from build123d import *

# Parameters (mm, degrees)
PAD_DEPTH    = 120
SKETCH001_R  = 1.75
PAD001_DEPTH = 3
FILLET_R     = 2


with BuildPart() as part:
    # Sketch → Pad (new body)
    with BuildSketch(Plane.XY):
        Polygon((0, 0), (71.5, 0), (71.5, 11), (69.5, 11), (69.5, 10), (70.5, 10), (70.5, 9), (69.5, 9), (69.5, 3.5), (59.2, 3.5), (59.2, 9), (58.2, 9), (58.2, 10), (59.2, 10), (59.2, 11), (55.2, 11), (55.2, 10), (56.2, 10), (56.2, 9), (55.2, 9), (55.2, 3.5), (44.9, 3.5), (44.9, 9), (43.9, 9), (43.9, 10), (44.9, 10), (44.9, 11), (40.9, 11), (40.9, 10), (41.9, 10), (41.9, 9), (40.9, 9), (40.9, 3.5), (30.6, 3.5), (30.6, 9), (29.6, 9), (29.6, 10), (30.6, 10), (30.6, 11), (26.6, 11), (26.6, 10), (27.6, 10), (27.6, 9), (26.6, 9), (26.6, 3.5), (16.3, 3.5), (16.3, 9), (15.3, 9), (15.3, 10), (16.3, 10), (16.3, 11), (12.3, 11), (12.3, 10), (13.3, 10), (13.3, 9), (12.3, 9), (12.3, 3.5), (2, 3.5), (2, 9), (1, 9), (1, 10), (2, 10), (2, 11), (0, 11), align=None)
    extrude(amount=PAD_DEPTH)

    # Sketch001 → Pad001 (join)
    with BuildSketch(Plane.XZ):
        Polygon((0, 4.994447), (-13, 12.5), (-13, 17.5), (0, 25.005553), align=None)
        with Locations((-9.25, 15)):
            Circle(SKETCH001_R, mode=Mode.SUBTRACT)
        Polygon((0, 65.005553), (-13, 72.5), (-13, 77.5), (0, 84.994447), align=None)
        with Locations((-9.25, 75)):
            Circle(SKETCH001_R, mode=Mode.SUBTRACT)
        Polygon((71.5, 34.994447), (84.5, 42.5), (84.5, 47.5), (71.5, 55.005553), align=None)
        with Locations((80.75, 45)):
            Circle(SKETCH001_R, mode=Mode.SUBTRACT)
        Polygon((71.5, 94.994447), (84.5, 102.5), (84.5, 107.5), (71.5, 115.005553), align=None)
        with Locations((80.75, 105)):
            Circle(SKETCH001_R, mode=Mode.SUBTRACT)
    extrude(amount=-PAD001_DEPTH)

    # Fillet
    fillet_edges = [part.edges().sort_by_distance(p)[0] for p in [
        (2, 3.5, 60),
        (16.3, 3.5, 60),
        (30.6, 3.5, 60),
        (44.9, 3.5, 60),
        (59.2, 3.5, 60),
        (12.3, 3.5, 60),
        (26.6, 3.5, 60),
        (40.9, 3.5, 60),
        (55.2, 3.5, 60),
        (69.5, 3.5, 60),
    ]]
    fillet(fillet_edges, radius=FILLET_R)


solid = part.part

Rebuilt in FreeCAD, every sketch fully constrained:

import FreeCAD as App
import Part
import Sketcher

V = App.Vector
Q = App.Units.Quantity


def edges_at(feature, points):
    """Names of the edges that pass closest to the given points."""
    edges = feature.Shape.Edges
    near = lambda p: min(range(len(edges)), key=lambda i: edges[i].distToShape(Part.Vertex(*p))[0])
    return sorted({f"Edge{near(p) + 1}" for p in points})


def add_polygon(sketch, points):
    """Adds a closed chain of lines whose ends are joined by coincident constraints."""
    first, n = sketch.GeometryCount, len(points)
    for a, b in zip(points, points[1:] + points[:1]):
        sketch.addGeometry(Part.LineSegment(App.Vector(*a, 0), App.Vector(*b, 0)), False)
    for i in range(n):
        sketch.addConstraint(Sketcher.Constraint("Coincident", first + i, 2, first + (i + 1) % n, 1))

doc = App.newDocument("Part")
body = doc.addObject("PartDesign::Body", "Body")

# Sketch on XY plane
sketch1 = doc.addObject("Sketcher::SketchObject", "Sketch")
body.addObject(sketch1)
sketch1.AttachmentSupport = (doc.XY_Plane, [""])
sketch1.MapMode = "FlatFace"
add_polygon(sketch1, [(0, 0), (71.5, 0), (71.5, 11), (69.5, 11), (69.5, 10), (70.5, 10), (70.5, 9), (69.5, 9), (69.5, 3.5), (59.2, 3.5), (59.2, 9), (58.2, 9), (58.2, 10), (59.2, 10), (59.2, 11), (55.2, 11), (55.2, 10), (56.2, 10), (56.2, 9), (55.2, 9), (55.2, 3.5), (44.9, 3.5), (44.9, 9), (43.9, 9), (43.9, 10), (44.9, 10), (44.9, 11), (40.9, 11), (40.9, 10), (41.9, 10), (41.9, 9), (40.9, 9), (40.9, 3.5), (30.6, 3.5), (30.6, 9), (29.6, 9), (29.6, 10), (30.6, 10), (30.6, 11), (26.6, 11), (26.6, 10), (27.6, 10), (27.6, 9), (26.6, 9), (26.6, 3.5), (16.3, 3.5), (16.3, 9), (15.3, 9), (15.3, 10), (16.3, 10), (16.3, 11), (12.3, 11), (12.3, 10), (13.3, 10), (13.3, 9), (12.3, 9), (12.3, 3.5), (2, 3.5), (2, 9), (1, 9), (1, 10), (2, 10), (2, 11), (0, 11)])  # lines 0-63
sketch1.addConstraint([
    Sketcher.Constraint("Horizontal", 0),
    Sketcher.Constraint("Vertical", 1),
    Sketcher.Constraint("Horizontal", 2),
    Sketcher.Constraint("Vertical", 3),
    Sketcher.Constraint("Horizontal", 4),
    Sketcher.Constraint("Vertical", 5),
    Sketcher.Constraint("Horizontal", 6),
    Sketcher.Constraint("Vertical", 7),
    Sketcher.Constraint("Horizontal", 8),
    Sketcher.Constraint("Vertical", 9),
    Sketcher.Constraint("Horizontal", 10),
    Sketcher.Constraint("Vertical", 11),
    Sketcher.Constraint("Horizontal", 12),
    Sketcher.Constraint("Vertical", 13),
    Sketcher.Constraint("Horizontal", 14),
    Sketcher.Constraint("Vertical", 15),
    Sketcher.Constraint("Horizontal", 16),
    Sketcher.Constraint("Vertical", 17),
    Sketcher.Constraint("Horizontal", 18),
    Sketcher.Constraint("Vertical", 19),
    Sketcher.Constraint("Horizontal", 20),
    Sketcher.Constraint("Vertical", 21),
    Sketcher.Constraint("Horizontal", 22),
    Sketcher.Constraint("Vertical", 23),
    Sketcher.Constraint("Horizontal", 24),
    Sketcher.Constraint("Vertical", 25),
    Sketcher.Constraint("Horizontal", 26),
    Sketcher.Constraint("Vertical", 27),
    Sketcher.Constraint("Horizontal", 28),
    Sketcher.Constraint("Vertical", 29),
    Sketcher.Constraint("Horizontal", 30),
    Sketcher.Constraint("Vertical", 31),
    Sketcher.Constraint("Horizontal", 32),
    Sketcher.Constraint("Vertical", 33),
    Sketcher.Constraint("Horizontal", 34),
    Sketcher.Constraint("Vertical", 35),
    Sketcher.Constraint("Horizontal", 36),
    Sketcher.Constraint("Vertical", 37),
    Sketcher.Constraint("Horizontal", 38),
    Sketcher.Constraint("Vertical", 39),
    Sketcher.Constraint("Horizontal", 40),
    Sketcher.Constraint("Vertical", 41),
    Sketcher.Constraint("Horizontal", 42),
    Sketcher.Constraint("Vertical", 43),
    Sketcher.Constraint("Horizontal", 44),
    Sketcher.Constraint("Vertical", 45),
    Sketcher.Constraint("Horizontal", 46),
    Sketcher.Constraint("Vertical", 47),
    Sketcher.Constraint("Horizontal", 48),
    Sketcher.Constraint("Vertical", 49),
    Sketcher.Constraint("Horizontal", 50),
    Sketcher.Constraint("Vertical", 51),
    Sketcher.Constraint("Horizontal", 52),
    Sketcher.Constraint("Vertical", 53),
    Sketcher.Constraint("Horizontal", 54),
    Sketcher.Constraint("Vertical", 55),
    Sketcher.Constraint("Horizontal", 56),
    Sketcher.Constraint("Vertical", 57),
    Sketcher.Constraint("Horizontal", 58),
    Sketcher.Constraint("Vertical", 59),
    Sketcher.Constraint("Horizontal", 60),
    Sketcher.Constraint("Vertical", 61),
    Sketcher.Constraint("Horizontal", 62),
    Sketcher.Constraint("Vertical", 63),
    Sketcher.Constraint("Coincident", 63, 2, -1, 1),
    Sketcher.Constraint("Horizontal", 6, 2, 9, 2),
    Sketcher.Constraint("Horizontal", 4, 2, 11, 2),
    Sketcher.Constraint("Horizontal", 2, 2, 13, 2),
    Sketcher.Constraint("Horizontal", 12, 2, 15, 2),
    Sketcher.Constraint("Horizontal", 10, 2, 17, 2),
    Sketcher.Constraint("Horizontal", 8, 2, 19, 2),
    Sketcher.Constraint("Horizontal", 18, 2, 21, 2),
    Sketcher.Constraint("Horizontal", 16, 2, 23, 2),
    Sketcher.Constraint("Horizontal", 14, 2, 25, 2),
    Sketcher.Constraint("Horizontal", 24, 2, 27, 2),
    Sketcher.Constraint("Horizontal", 22, 2, 29, 2),
    Sketcher.Constraint("Horizontal", 20, 2, 31, 2),
    Sketcher.Constraint("Horizontal", 30, 2, 33, 2),
    Sketcher.Constraint("Horizontal", 28, 2, 35, 2),
    Sketcher.Constraint("Horizontal", 26, 2, 37, 2),
    Sketcher.Constraint("Horizontal", 36, 2, 39, 2),
    Sketcher.Constraint("Horizontal", 34, 2, 41, 2),
    Sketcher.Constraint("Horizontal", 32, 2, 43, 2),
    Sketcher.Constraint("Horizontal", 42, 2, 45, 2),
    Sketcher.Constraint("Horizontal", 40, 2, 47, 2),
    Sketcher.Constraint("Horizontal", 38, 2, 49, 2),
    Sketcher.Constraint("Horizontal", 48, 2, 51, 2),
    Sketcher.Constraint("Horizontal", 46, 2, 53, 2),
    Sketcher.Constraint("Horizontal", 44, 2, 55, 2),
    Sketcher.Constraint("Horizontal", 54, 2, 57, 2),
    Sketcher.Constraint("Horizontal", 52, 2, 59, 2),
    Sketcher.Constraint("Horizontal", 50, 2, 61, 2),
    Sketcher.Constraint("Vertical", 3, 2, 6, 2),
    Sketcher.Constraint("Vertical", 9, 2, 12, 2),
    Sketcher.Constraint("Vertical", 15, 2, 18, 2),
    Sketcher.Constraint("Vertical", 21, 2, 24, 2),
    Sketcher.Constraint("Vertical", 27, 2, 30, 2),
    Sketcher.Constraint("Vertical", 33, 2, 36, 2),
    Sketcher.Constraint("Vertical", 39, 2, 42, 2),
    Sketcher.Constraint("Vertical", 45, 2, 48, 2),
    Sketcher.Constraint("Vertical", 51, 2, 54, 2),
    Sketcher.Constraint("Vertical", 57, 2, 60, 2),
    Sketcher.Constraint("Equal", 6, 10),
    Sketcher.Constraint("Equal", 12, 16),
    Sketcher.Constraint("Equal", 8, 20),
    Sketcher.Constraint("Equal", 18, 22),
    Sketcher.Constraint("Equal", 14, 26),
    Sketcher.Constraint("Equal", 24, 28),
    Sketcher.Constraint("Equal", 20, 32),
    Sketcher.Constraint("Equal", 30, 34),
    Sketcher.Constraint("Equal", 26, 38),
    Sketcher.Constraint("Equal", 36, 40),
    Sketcher.Constraint("Equal", 32, 44),
    Sketcher.Constraint("Equal", 42, 46),
    Sketcher.Constraint("Equal", 38, 50),
    Sketcher.Constraint("Equal", 48, 52),
    Sketcher.Constraint("Equal", 44, 56),
    Sketcher.Constraint("Equal", 54, 58),
    Sketcher.Constraint("Equal", 2, 62),
    Sketcher.Constraint("Equal", 60, 3),
    Sketcher.Constraint("Equal", 3, 5),
    Sketcher.Constraint("DistanceX", 2, 2, 2, 1, Q("2 mm")),
    Sketcher.Constraint("DistanceX", 4, 1, 4, 2, Q("1 mm")),
    Sketcher.Constraint("DistanceX", 14, 2, 14, 1, Q("4 mm")),
    Sketcher.Constraint("DistanceY", 1, 1, 1, 2, Q("11 mm")),
    Sketcher.Constraint("DistanceX", 0, 1, 0, 2, Q("71.5 mm")),
    Sketcher.Constraint("DistanceY", 7, 2, 7, 1, Q("5.5 mm")),
])
pad1 = doc.addObject("PartDesign::Pad", "Pad")
body.addObject(pad1)
pad1.Profile = sketch1
pad1.Length = 120

# Sketch on XZ plane
sketch2 = doc.addObject("Sketcher::SketchObject", "Sketch001")
body.addObject(sketch2)
sketch2.AttachmentSupport = (doc.XZ_Plane, [""])
sketch2.MapMode = "FlatFace"
add_polygon(sketch2, [(-13, 12.5), (0, 4.994447), (0, 25.005553), (-13, 17.5)])  # lines 0-3
sketch2.addGeometry(Part.Circle(V(-9.25, 15, 0), V(0, 0, 1), 1.75), False)  # 4
add_polygon(sketch2, [(-13, 72.5), (0, 65.005553), (0, 84.994447), (-13, 77.5)])  # lines 5-8
sketch2.addGeometry(Part.Circle(V(-9.25, 75, 0), V(0, 0, 1), 1.75), False)  # 9
add_polygon(sketch2, [(71.5, 34.994447), (84.5, 42.5), (84.5, 47.5), (71.5, 55.005553)])  # lines 10-13
sketch2.addGeometry(Part.Circle(V(80.75, 45, 0), V(0, 0, 1), 1.75), False)  # 14
add_polygon(sketch2, [(71.5, 94.994447), (84.5, 102.5), (84.5, 107.5), (71.5, 115.005553)])  # lines 15-18
sketch2.addGeometry(Part.Circle(V(80.75, 105, 0), V(0, 0, 1), 1.75), False)  # 19
sketch2.addConstraint([
    Sketcher.Constraint("Vertical", 1),
    Sketcher.Constraint("Vertical", 3),
    Sketcher.Constraint("Vertical", 6),
    Sketcher.Constraint("Vertical", 8),
    Sketcher.Constraint("Vertical", 11),
    Sketcher.Constraint("Vertical", 13),
    Sketcher.Constraint("Vertical", 16),
    Sketcher.Constraint("Vertical", 18),
    Sketcher.Constraint("Equal", 4, 9),
    Sketcher.Constraint("Equal", 9, 14),
    Sketcher.Constraint("Equal", 14, 19),
    Sketcher.Constraint("PointOnObject", 0, 2, -2),
    Sketcher.Constraint("PointOnObject", 5, 2, -2),
    Sketcher.Constraint("Parallel", 2, 10),
    Sketcher.Constraint("Parallel", 0, 12),
    Sketcher.Constraint("Parallel", 10, 15),
    Sketcher.Constraint("Parallel", 12, 17),
    Sketcher.Constraint("Vertical", 4, 3, 9, 3),
    Sketcher.Constraint("Vertical", 14, 3, 19, 3),
    Sketcher.Constraint("Vertical", 3, 2, 7, 2),
    Sketcher.Constraint("Vertical", 11, 2, 15, 2),
    Sketcher.Constraint("Vertical", 13, 2, 17, 2),
    Sketcher.Constraint("Equal", 3, 8),
    Sketcher.Constraint("Equal", 8, 11),
    Sketcher.Constraint("Equal", 1, 13),
    Sketcher.Constraint("Equal", 11, 16),
    Sketcher.Constraint("Equal", 0, 2),
    Sketcher.Constraint("Equal", 5, 7),
    Sketcher.Constraint("Diameter", 4, Q("3.5 mm")),
    Sketcher.Constraint("DistanceY", 3, 2, 3, 1, Q("5 mm")),
    Sketcher.Constraint("Angle", 0, Q("-29.999998 deg")),
    Sketcher.Constraint("DistanceY", -1, 1, 4, 3, Q("15 mm")),
    Sketcher.Constraint("DistanceY", -1, 1, 9, 3, Q("75 mm")),
    Sketcher.Constraint("DistanceY", -1, 1, 14, 3, Q("45 mm")),
    Sketcher.Constraint("DistanceY", -1, 1, 19, 3, Q("105 mm")),
    Sketcher.Constraint("DistanceX", 2, 2, -1, 1, Q("13 mm")),
    Sketcher.Constraint("DistanceX", 4, 3, 14, 3, Q("90 mm")),
    Sketcher.Constraint("DistanceY", 1, 2, 5, 2, Q("40 mm")),
    Sketcher.Constraint("DistanceY", 2, 2, 7, 2, Q("60 mm")),
    Sketcher.Constraint("DistanceY", 12, 2, 5, 2, Q("10 mm")),
    Sketcher.Constraint("DistanceY", 11, 2, 15, 2, Q("55 mm")),
    Sketcher.Constraint("DistanceY", -1, 1, 2, 2, Q("17.5 mm")),
    Sketcher.Constraint("DistanceX", -1, 1, 10, 2, Q("84.5 mm")),
    Sketcher.Constraint("DistanceX", 4, 3, -1, 1, Q("9.25 mm")),
])
pad2 = doc.addObject("PartDesign::Pad", "Pad001")
body.addObject(pad2)
pad2.Profile = sketch2
pad2.Length = 3
pad2.Reversed = True
doc.recompute()

fillet = doc.addObject("PartDesign::Fillet", "Fillet")
body.addObject(fillet)
fillet.Base = (pad2, edges_at(pad2, [
    (2, 3.5, 60),
    (16.3, 3.5, 60),
    (30.6, 3.5, 60),
    (44.9, 3.5, 60),
    (59.2, 3.5, 60),
    (12.3, 3.5, 60),
    (26.6, 3.5, 60),
    (40.9, 3.5, 60),
    (55.2, 3.5, 60),
    (69.5, 3.5, 60),
]))
fillet.Radius = 2

doc.recompute()
